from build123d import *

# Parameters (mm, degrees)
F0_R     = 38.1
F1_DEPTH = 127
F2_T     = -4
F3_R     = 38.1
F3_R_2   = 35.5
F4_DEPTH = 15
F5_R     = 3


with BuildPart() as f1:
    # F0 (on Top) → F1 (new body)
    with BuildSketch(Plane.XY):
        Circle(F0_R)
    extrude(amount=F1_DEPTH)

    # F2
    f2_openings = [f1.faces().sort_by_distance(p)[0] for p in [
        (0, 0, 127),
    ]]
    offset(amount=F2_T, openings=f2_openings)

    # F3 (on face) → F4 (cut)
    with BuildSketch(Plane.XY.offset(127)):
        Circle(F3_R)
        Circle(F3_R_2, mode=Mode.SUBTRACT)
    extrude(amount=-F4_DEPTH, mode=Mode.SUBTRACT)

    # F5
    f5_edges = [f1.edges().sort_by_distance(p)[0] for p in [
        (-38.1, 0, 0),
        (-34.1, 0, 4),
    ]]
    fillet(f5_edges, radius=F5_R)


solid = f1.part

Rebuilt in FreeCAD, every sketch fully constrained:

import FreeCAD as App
import Part
import Sketcher
from FreeCAD import Vector
Q = App.Units.Quantity


def edges_at(feature, points):
    """Names of the edges that pass closest to the given points."""
    edges = feature.Shape.Edges
    near = lambda p: min(range(len(edges)), key=lambda i: edges[i].distToShape(Part.Vertex(*p))[0])
    return sorted({f"Edge{near(p) + 1}" for p in points})


def faces_at(feature, points):
    """Names of the faces that lie closest to the given points."""
    faces = feature.Shape.Faces
    near = lambda p: min(range(len(faces)), key=lambda i: faces[i].distToShape(Part.Vertex(*p))[0])
    return sorted({f"Face{near(p) + 1}" for p in points})

doc = App.newDocument("Part")
body = doc.addObject("PartDesign::Body", "Body")

# Sketch on XY plane
sketch1 = body.newObject("Sketcher::SketchObject", "Sketch")
sketch1.AttachmentSupport = (doc.getObject("XY_Plane"), [""])
sketch1.MapMode = "FlatFace"
sketch1.addGeometry(Part.Circle(Vector(0, 0, 0), Vector(0, 0, 1), 38), False)
sketch1.addConstraint(Sketcher.Constraint("Coincident", 0, 3, -1, 1))
sketch1.addConstraint(Sketcher.Constraint("Diameter", 0, Q("76.2 mm")))
pad1 = body.newObject("PartDesign::Pad", "Pad")
pad1.Profile = sketch1
pad1.Length = 127
doc.recompute()

thickness = body.newObject("PartDesign::Thickness", "Thickness")
thickness.Base = (pad1, faces_at(pad1, [(0, 0, 127)]))
thickness.Value = 4
thickness.Reversed = True
thickness.Join = "Arc"

# Sketch on XY plane
sketch2 = body.newObject("Sketcher::SketchObject", "Sketch001")
sketch2.AttachmentSupport = (doc.getObject("XY_Plane"), [""])
sketch2.MapMode = "FlatFace"
sketch2.AttachmentOffset = App.Placement(Vector(0, 0, 127), App.Rotation())
sketch2.addGeometry(Part.Circle(Vector(0, 0, 0), Vector(0, 0, 1), 38), False)
sketch2.addGeometry(Part.Circle(Vector(0, 0, 0), Vector(0, 0, 1), 36), False)
sketch2.addConstraint(Sketcher.Constraint("Coincident", 0, 3, -1, 1))
sketch2.addConstraint(Sketcher.Constraint("Coincident", 1, 3, -1, 1))
sketch2.addConstraint(Sketcher.Constraint("Diameter", 1, Q("71 mm")))
sketch2.addConstraint(Sketcher.Constraint("Diameter", 0, Q("76.2 mm")))
pocket1 = body.newObject("PartDesign::Pocket", "Pocket")
pocket1.Profile = sketch2
pocket1.Length = 15
doc.recompute()

fillet = body.newObject("PartDesign::Fillet", "Fillet")
fillet.Base = (pocket1, edges_at(pocket1, [(-38.1, 0, 0), (-34.1, 0, 4)]))
fillet.Radius = 3

doc.recompute()
